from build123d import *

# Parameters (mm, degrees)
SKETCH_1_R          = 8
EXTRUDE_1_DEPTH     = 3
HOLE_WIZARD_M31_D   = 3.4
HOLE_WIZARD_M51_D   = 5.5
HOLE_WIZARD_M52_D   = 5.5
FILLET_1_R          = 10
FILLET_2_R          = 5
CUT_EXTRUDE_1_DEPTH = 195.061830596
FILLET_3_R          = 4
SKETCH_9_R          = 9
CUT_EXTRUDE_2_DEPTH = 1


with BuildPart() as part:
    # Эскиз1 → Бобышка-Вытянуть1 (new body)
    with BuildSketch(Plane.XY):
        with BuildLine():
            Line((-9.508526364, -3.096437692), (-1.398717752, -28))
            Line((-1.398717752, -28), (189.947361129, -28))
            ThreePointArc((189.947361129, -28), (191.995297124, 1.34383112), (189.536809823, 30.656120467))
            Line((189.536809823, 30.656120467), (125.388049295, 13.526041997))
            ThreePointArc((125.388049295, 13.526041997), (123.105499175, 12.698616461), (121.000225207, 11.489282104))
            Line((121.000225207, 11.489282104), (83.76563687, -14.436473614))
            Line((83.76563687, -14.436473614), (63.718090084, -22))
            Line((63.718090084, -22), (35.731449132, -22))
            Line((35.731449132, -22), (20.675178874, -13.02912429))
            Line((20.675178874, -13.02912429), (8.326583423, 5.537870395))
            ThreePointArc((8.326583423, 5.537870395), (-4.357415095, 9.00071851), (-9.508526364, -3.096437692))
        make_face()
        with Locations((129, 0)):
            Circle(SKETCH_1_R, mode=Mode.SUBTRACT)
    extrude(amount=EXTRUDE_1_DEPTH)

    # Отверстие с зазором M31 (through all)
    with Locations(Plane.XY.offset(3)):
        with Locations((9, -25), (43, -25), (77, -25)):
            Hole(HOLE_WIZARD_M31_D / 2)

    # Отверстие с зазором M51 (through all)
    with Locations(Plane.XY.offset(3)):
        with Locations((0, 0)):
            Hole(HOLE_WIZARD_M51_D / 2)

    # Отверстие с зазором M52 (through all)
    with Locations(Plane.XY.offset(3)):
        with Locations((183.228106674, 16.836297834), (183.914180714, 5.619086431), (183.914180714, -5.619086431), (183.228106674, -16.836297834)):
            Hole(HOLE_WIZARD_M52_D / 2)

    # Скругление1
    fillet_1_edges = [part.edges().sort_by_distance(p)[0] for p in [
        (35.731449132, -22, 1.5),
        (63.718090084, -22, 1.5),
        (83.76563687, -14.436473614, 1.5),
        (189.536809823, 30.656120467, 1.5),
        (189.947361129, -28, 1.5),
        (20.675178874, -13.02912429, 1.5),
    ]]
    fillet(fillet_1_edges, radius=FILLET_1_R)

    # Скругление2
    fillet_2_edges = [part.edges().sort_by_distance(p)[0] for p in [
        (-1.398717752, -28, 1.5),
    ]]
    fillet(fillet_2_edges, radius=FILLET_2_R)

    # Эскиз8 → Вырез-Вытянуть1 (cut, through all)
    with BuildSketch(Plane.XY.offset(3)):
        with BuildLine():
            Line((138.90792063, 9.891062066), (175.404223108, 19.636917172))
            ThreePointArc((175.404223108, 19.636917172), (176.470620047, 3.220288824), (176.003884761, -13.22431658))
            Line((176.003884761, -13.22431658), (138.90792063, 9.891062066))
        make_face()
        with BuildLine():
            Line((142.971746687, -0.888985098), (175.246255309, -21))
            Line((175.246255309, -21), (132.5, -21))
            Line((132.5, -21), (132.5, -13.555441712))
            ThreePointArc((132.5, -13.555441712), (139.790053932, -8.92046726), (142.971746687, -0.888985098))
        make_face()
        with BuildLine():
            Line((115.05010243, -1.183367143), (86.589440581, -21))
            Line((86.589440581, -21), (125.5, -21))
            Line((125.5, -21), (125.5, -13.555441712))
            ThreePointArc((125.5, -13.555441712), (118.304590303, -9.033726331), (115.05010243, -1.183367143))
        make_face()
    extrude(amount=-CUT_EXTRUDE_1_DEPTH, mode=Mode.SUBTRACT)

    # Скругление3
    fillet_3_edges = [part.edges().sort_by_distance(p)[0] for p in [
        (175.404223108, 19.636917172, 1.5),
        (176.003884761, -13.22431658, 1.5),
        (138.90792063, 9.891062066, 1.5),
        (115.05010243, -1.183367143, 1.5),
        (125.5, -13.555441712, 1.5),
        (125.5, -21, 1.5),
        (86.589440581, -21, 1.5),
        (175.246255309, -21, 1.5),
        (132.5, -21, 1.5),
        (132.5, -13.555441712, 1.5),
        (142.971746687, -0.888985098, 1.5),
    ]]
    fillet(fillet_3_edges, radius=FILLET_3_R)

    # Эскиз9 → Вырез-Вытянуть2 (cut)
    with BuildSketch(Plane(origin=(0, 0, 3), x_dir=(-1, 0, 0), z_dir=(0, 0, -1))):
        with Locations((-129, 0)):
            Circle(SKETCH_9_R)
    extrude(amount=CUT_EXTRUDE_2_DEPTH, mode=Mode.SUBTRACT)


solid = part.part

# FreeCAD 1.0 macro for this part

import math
import FreeCAD as App
import Part
import Sketcher

V = App.Vector


def edges_at(feature, points):
    """Names of the edges that pass closest to the given points."""
    edges = feature.Shape.Edges
    near = lambda p: min(range(len(edges)), key=lambda i: edges[i].distToShape(Part.Vertex(*p))[0])
    return sorted({f"Edge{near(p) + 1}" for p in points})

doc = App.newDocument("Part")
body = doc.addObject("PartDesign::Body", "Body")

# Sketch on XY plane
sketch1 = body.newObject("Sketcher::SketchObject", "Sketch")
sketch1.AttachmentSupport = (doc.getObject("XY_Plane"), [""])
sketch1.MapMode = "FlatFace"
sketch1.addGeometry([
    Part.LineSegment(V(-9.5, -3.1, 0), V(-1.4, -28, 0)),  # 0
    Part.LineSegment(V(-1.4, -28, 0), V(189.9, -28, 0)),  # 1
    Part.ArcOfCircle(Part.Circle(V(0, 0, 0), V(0, 0, 1), 192), math.radians(-8.39), math.radians(9.19)),  # 2
    Part.LineSegment(V(189.5, 30.7, 0), V(125.4, 13.5, 0)),  # 3
    Part.ArcOfCircle(Part.Circle(V(129, 0, 0), V(0, 0, 1), 14), math.radians(104.95), math.radians(124.85)),  # 4
    Part.LineSegment(V(121, 11.5, 0), V(83.8, -14.4, 0)),  # 5
    Part.LineSegment(V(83.8, -14.4, 0), V(63.7, -22, 0)),  # 6
    Part.LineSegment(V(63.7, -22, 0), V(35.7, -22, 0)),  # 7
    Part.LineSegment(V(35.7, -22, 0), V(20.7, -13, 0)),  # 8
    Part.LineSegment(V(20.7, -13, 0), V(8.3, 5.5, 0)),  # 9
    Part.ArcOfCircle(Part.Circle(V(0, 0, 0), V(0, 0, 1), 10), math.radians(34), math.radians(198)),  # 10
    Part.Circle(V(129, 0, 0), V(0, 0, 1), 8),  # 11
], False)
sketch1.addConstraint([
    Sketcher.Constraint("Coincident", 0, 2, 1, 1),
    Sketcher.Constraint("Coincident", 1, 2, 2, 1),
    Sketcher.Constraint("Coincident", 2, 2, 3, 1),
    Sketcher.Constraint("Tangent", 3, 2, 4, 1),
    Sketcher.Constraint("Tangent", 4, 2, 5, 1),
    Sketcher.Constraint("Coincident", 5, 2, 6, 1),
    Sketcher.Constraint("Coincident", 6, 2, 7, 1),
    Sketcher.Constraint("Coincident", 7, 2, 8, 1),
    Sketcher.Constraint("Coincident", 8, 2, 9, 1),
    Sketcher.Constraint("Tangent", 9, 2, 10, 1),
    Sketcher.Constraint("Tangent", 10, 2, 0, 1),
    Sketcher.Constraint("Horizontal", 1),
    Sketcher.Constraint("Horizontal", 7),
    Sketcher.Constraint("Coincident", 2, 3, -1, 1),
    Sketcher.Constraint("Coincident", 10, 3, -1, 1),
    Sketcher.Constraint("Coincident", 11, 3, 4, 3),
    Sketcher.Constraint("PointOnObject", 4, 3, -1),
    Sketcher.Constraint("Diameter", 11, 16.0),
    Sketcher.Constraint("Radius", 2, 192.0),
    Sketcher.Constraint("Radius", 4, 14.0),
    Sketcher.Constraint("Radius", 10, 10.0),
    Sketcher.Constraint("DistanceX", -1, 1, 4, 3, 129.0),
    Sketcher.Constraint("DistanceY", 0, 2, -1, 1, 28.0),
    Sketcher.Constraint("DistanceY", 6, 2, -1, 1, 22.0),
    Sketcher.Constraint("DistanceX", 1, 1, 1, 2, 191.346079),
    Sketcher.Constraint("DistanceX", 7, 2, 7, 1, 27.986641),
    Sketcher.Constraint("DistanceX", 0, 2, 9, 2, 9.725301),
    Sketcher.Constraint("Distance", 3, 66.396559),
    Sketcher.Constraint("Distance", 5, 45.37135),
    Sketcher.Constraint("DistanceX", -1, 1, 6, 2, 63.71809),
    Sketcher.Constraint("DistanceX", -1, 1, 8, 2, 20.675179),
    Sketcher.Constraint("DistanceY", 4, 2, 3, 2, 2.03676),
])
pad1 = body.newObject("PartDesign::Pad", "Pad")
pad1.Profile = sketch1
pad1.Length = 3

# Sketch on XY plane
sketch2 = body.newObject("Sketcher::SketchObject", "Sketch001")
sketch2.AttachmentSupport = (doc.getObject("XY_Plane"), [""])
sketch2.MapMode = "FlatFace"
sketch2.AttachmentOffset = App.Placement(V(0, 0, 3), App.Rotation())
sketch2.addGeometry([
    Part.Circle(V(9, -25, 0), V(0, 0, 1), 1.7),
    Part.Circle(V(43, -25, 0), V(0, 0, 1), 1.7),
    Part.Circle(V(77, -25, 0), V(0, 0, 1), 1.7),
], False)
sketch2.addConstraint([
    Sketcher.Constraint("Equal", 0, 1),
    Sketcher.Constraint("Equal", 1, 2),
    Sketcher.Constraint("Horizontal", 0, 3, 1, 3),
    Sketcher.Constraint("Horizontal", 1, 3, 2, 3),
    Sketcher.Constraint("Diameter", 0, 3.4),
    Sketcher.Constraint("DistanceX", -1, 1, 0, 3, 9.0),
    Sketcher.Constraint("DistanceY", 0, 3, -1, 1, 25.0),
    Sketcher.Constraint("DistanceX", -1, 1, 1, 3, 43.0),
    Sketcher.Constraint("DistanceX", -1, 1, 2, 3, 77.0),
])
doc.recompute()
hole = body.newObject("PartDesign::Hole", "Hole")
hole.Profile = sketch2
hole.ThreadType = "None"
hole.Diameter = 3.4
hole.DepthType = "ThroughAll"

# Sketch on XY plane
sketch3 = body.newObject("Sketcher::SketchObject", "Sketch002")
sketch3.AttachmentSupport = (doc.getObject("XY_Plane"), [""])
sketch3.MapMode = "FlatFace"
sketch3.AttachmentOffset = App.Placement(V(0, 0, 3), App.Rotation())
sketch3.addGeometry(Part.Circle(V(0, 0, 0), V(0, 0, 1), 2.8), False)
sketch3.addConstraint([
    Sketcher.Constraint("Coincident", 0, 3, -1, 1),
    Sketcher.Constraint("Diameter", 0, 5.5),
])
doc.recompute()
hole2 = body.newObject("PartDesign::Hole", "Hole001")
hole2.Profile = sketch3
hole2.ThreadType = "None"
hole2.Diameter = 5.5
hole2.DepthType = "ThroughAll"

# Sketch on XY plane
sketch4 = body.newObject("Sketcher::SketchObject", "Sketch003")
sketch4.AttachmentSupport = (doc.getObject("XY_Plane"), [""])
sketch4.MapMode = "FlatFace"
sketch4.AttachmentOffset = App.Placement(V(0, 0, 3), App.Rotation())
sketch4.addGeometry([
    Part.Circle(V(183.2, 16.8, 0), V(0, 0, 1), 2.8),
    Part.Circle(V(183.9, 5.6, 0), V(0, 0, 1), 2.8),
    Part.Circle(V(183.9, -5.6, 0), V(0, 0, 1), 2.8),
    Part.Circle(V(183.2, -16.8, 0), V(0, 0, 1), 2.8),
], False)
sketch4.addConstraint([
    Sketcher.Constraint("Equal", 0, 1),
    Sketcher.Constraint("Equal", 1, 2),
    Sketcher.Constraint("Equal", 2, 3),
    Sketcher.Constraint("Symmetric", 1, 3, 2, 3, -1),
    Sketcher.Constraint("Symmetric", 0, 3, 3, 3, -1),
    Sketcher.Constraint("Diameter", 0, 5.5),
    Sketcher.Constraint("DistanceX", -1, 1, 1, 3, 183.914181),
    Sketcher.Constraint("DistanceY", 1, 3, 0, 3, 11.217211),
    Sketcher.Constraint("DistanceX", -1, 1, 0, 3, 183.228107),
    Sketcher.Constraint("DistanceY", -1, 1, 0, 3, 16.836298),
])
doc.recompute()
hole3 = body.newObject("PartDesign::Hole", "Hole002")
hole3.Profile = sketch4
hole3.ThreadType = "None"
hole3.Diameter = 5.5
hole3.DepthType = "ThroughAll"
doc.recompute()

fillet = body.newObject("PartDesign::Fillet", "Fillet")
fillet.Base = (hole3, edges_at(hole3, [
    (35.731, -22, 1.5),
    (63.718, -22, 1.5),
    (83.766, -14.436, 1.5),
    (189.537, 30.656, 1.5),
    (189.947, -28, 1.5),
    (20.675, -13.029, 1.5),
]))
fillet.Radius = 10
doc.recompute()

fillet2 = body.newObject("PartDesign::Fillet", "Fillet001")
fillet2.Base = (fillet, edges_at(fillet, [(-1.399, -28, 1.5)]))
fillet2.Radius = 5

# Sketch on XY plane
sketch5 = body.newObject("Sketcher::SketchObject", "Sketch004")
sketch5.AttachmentSupport = (doc.getObject("XY_Plane"), [""])
sketch5.MapMode = "FlatFace"
sketch5.AttachmentOffset = App.Placement(V(0, 0, 3), App.Rotation())
sketch5.addGeometry([
    Part.LineSegment(V(175, 20, 0), V(139, 10, 0)),  # 0
    Part.LineSegment(V(139, 10, 0), V(176, -13, 0)),  # 1
    Part.ArcOfCircle(Part.Circle(V(0, 0, 0), V(0, 0, 1), 177), math.radians(-4.3), math.radians(6.39)),  # 2
    Part.LineSegment(V(175, -21, 0), V(143, -1, 0)),  # 3
    Part.ArcOfCircle(Part.Circle(V(129, 0, 0), V(0, 0, 1), 14), math.radians(-76), math.radians(-4)),  # 4
    Part.LineSegment(V(132, -14, 0), V(132, -21, 0)),  # 5
    Part.LineSegment(V(132, -21, 0), V(175, -21, 0)),  # 6
    Part.LineSegment(V(115, -1, 0), V(87, -21, 0)),  # 7
    Part.LineSegment(V(87, -21, 0), V(126, -21, 0)),  # 8
    Part.LineSegment(V(126, -21, 0), V(126, -14, 0)),  # 9
    Part.ArcOfCircle(Part.Circle(V(129, 0, 0), V(0, 0, 1), 14), math.radians(-175), math.radians(-104)),  # 10
], False)
sketch5.addConstraint([
    Sketcher.Constraint("Coincident", 0, 2, 1, 1),
    Sketcher.Constraint("Coincident", 1, 2, 2, 1),
    Sketcher.Constraint("Coincident", 2, 2, 0, 1),
    Sketcher.Constraint("Coincident", 3, 2, 4, 2),
    Sketcher.Constraint("Coincident", 4, 1, 5, 1),
    Sketcher.Constraint("Coincident", 5, 2, 6, 1),
    Sketcher.Constraint("Coincident", 6, 2, 3, 1),
    Sketcher.Constraint("Coincident", 7, 2, 8, 1),
    Sketcher.Constraint("Coincident", 8, 2, 9, 1),
    Sketcher.Constraint("Coincident", 9, 2, 10, 2),
    Sketcher.Constraint("Coincident", 10, 1, 7, 1),
    Sketcher.Constraint("Vertical", 5),
    Sketcher.Constraint("Horizontal", 6),
    Sketcher.Constraint("Horizontal", 8),
    Sketcher.Constraint("Vertical", 9),
    Sketcher.Constraint("Coincident", 2, 3, -1, 1),
    Sketcher.Constraint("Coincident", 10, 3, 4, 3),
    Sketcher.Constraint("Equal", 4, 10),
    Sketcher.Constraint("PointOnObject", 4, 3, -1),
    Sketcher.Constraint("Parallel", 1, 3),
    Sketcher.Constraint("Horizontal", 6, 2, 7, 2),
    Sketcher.Constraint("Horizontal", 4, 1, 9, 2),
    Sketcher.Constraint("Radius", 4, 14.0),
    Sketcher.Constraint("Radius", 2, 176.5),
    Sketcher.Constraint("DistanceX", -1, 1, 4, 3, 129.0),
    Sketcher.Constraint("DistanceY", 5, 2, -1, 1, 21.0),
    Sketcher.Constraint("DistanceX", 8, 2, 5, 2, 7.0),
    Sketcher.Constraint("DistanceX", 8, 1, 8, 2, 38.910559),
    Sketcher.Constraint("Distance", 1, 43.708481),
    Sketcher.Constraint("Distance", 3, 38.02758),
    Sketcher.Constraint("DistanceX", 6, 1, 6, 2, 42.746255),
    Sketcher.Constraint("DistanceX", -1, 1, 0, 2, 138.907921),
    Sketcher.Constraint("DistanceX", 2, 2, 1, 2, 0.599662),
    Sketcher.Constraint("Distance", 7, 34.680084),
])
pocket1 = body.newObject("PartDesign::Pocket", "Pocket")
pocket1.Profile = sketch5
pocket1.Type = "ThroughAll"
doc.recompute()

fillet3 = body.newObject("PartDesign::Fillet", "Fillet002")
fillet3.Base = (pocket1, edges_at(pocket1, [
    (175.404, 19.637, 1.5),
    (176.004, -13.224, 1.5),
    (138.908, 9.891, 1.5),
    (115.05, -1.183, 1.5),
    (125.5, -13.555, 1.5),
    (125.5, -21, 1.5),
    (86.589, -21, 1.5),
    (175.246, -21, 1.5),
    (132.5, -21, 1.5),
    (132.5, -13.555, 1.5),
    (142.972, -0.889, 1.5),
]))
fillet3.Radius = 4

# Sketch on XY plane
sketch6 = body.newObject("Sketcher::SketchObject", "Sketch005")
sketch6.AttachmentSupport = (doc.getObject("XY_Plane"), [""])
sketch6.MapMode = "FlatFace"
sketch6.AttachmentOffset = App.Placement(V(0, 0, 3), App.Rotation())
sketch6.addGeometry(Part.Circle(V(129, 0, 0), V(0, 0, 1), 9), False)
sketch6.addConstraint([
    Sketcher.Constraint("PointOnObject", 0, 3, -1),
    Sketcher.Constraint("Diameter", 0, 18.0),
    Sketcher.Constraint("DistanceX", -1, 1, 0, 3, 129.0),
])
pocket2 = body.newObject("PartDesign::Pocket", "Pocket001")
pocket2.Profile = sketch6
pocket2.Length = 1

doc.recompute()
